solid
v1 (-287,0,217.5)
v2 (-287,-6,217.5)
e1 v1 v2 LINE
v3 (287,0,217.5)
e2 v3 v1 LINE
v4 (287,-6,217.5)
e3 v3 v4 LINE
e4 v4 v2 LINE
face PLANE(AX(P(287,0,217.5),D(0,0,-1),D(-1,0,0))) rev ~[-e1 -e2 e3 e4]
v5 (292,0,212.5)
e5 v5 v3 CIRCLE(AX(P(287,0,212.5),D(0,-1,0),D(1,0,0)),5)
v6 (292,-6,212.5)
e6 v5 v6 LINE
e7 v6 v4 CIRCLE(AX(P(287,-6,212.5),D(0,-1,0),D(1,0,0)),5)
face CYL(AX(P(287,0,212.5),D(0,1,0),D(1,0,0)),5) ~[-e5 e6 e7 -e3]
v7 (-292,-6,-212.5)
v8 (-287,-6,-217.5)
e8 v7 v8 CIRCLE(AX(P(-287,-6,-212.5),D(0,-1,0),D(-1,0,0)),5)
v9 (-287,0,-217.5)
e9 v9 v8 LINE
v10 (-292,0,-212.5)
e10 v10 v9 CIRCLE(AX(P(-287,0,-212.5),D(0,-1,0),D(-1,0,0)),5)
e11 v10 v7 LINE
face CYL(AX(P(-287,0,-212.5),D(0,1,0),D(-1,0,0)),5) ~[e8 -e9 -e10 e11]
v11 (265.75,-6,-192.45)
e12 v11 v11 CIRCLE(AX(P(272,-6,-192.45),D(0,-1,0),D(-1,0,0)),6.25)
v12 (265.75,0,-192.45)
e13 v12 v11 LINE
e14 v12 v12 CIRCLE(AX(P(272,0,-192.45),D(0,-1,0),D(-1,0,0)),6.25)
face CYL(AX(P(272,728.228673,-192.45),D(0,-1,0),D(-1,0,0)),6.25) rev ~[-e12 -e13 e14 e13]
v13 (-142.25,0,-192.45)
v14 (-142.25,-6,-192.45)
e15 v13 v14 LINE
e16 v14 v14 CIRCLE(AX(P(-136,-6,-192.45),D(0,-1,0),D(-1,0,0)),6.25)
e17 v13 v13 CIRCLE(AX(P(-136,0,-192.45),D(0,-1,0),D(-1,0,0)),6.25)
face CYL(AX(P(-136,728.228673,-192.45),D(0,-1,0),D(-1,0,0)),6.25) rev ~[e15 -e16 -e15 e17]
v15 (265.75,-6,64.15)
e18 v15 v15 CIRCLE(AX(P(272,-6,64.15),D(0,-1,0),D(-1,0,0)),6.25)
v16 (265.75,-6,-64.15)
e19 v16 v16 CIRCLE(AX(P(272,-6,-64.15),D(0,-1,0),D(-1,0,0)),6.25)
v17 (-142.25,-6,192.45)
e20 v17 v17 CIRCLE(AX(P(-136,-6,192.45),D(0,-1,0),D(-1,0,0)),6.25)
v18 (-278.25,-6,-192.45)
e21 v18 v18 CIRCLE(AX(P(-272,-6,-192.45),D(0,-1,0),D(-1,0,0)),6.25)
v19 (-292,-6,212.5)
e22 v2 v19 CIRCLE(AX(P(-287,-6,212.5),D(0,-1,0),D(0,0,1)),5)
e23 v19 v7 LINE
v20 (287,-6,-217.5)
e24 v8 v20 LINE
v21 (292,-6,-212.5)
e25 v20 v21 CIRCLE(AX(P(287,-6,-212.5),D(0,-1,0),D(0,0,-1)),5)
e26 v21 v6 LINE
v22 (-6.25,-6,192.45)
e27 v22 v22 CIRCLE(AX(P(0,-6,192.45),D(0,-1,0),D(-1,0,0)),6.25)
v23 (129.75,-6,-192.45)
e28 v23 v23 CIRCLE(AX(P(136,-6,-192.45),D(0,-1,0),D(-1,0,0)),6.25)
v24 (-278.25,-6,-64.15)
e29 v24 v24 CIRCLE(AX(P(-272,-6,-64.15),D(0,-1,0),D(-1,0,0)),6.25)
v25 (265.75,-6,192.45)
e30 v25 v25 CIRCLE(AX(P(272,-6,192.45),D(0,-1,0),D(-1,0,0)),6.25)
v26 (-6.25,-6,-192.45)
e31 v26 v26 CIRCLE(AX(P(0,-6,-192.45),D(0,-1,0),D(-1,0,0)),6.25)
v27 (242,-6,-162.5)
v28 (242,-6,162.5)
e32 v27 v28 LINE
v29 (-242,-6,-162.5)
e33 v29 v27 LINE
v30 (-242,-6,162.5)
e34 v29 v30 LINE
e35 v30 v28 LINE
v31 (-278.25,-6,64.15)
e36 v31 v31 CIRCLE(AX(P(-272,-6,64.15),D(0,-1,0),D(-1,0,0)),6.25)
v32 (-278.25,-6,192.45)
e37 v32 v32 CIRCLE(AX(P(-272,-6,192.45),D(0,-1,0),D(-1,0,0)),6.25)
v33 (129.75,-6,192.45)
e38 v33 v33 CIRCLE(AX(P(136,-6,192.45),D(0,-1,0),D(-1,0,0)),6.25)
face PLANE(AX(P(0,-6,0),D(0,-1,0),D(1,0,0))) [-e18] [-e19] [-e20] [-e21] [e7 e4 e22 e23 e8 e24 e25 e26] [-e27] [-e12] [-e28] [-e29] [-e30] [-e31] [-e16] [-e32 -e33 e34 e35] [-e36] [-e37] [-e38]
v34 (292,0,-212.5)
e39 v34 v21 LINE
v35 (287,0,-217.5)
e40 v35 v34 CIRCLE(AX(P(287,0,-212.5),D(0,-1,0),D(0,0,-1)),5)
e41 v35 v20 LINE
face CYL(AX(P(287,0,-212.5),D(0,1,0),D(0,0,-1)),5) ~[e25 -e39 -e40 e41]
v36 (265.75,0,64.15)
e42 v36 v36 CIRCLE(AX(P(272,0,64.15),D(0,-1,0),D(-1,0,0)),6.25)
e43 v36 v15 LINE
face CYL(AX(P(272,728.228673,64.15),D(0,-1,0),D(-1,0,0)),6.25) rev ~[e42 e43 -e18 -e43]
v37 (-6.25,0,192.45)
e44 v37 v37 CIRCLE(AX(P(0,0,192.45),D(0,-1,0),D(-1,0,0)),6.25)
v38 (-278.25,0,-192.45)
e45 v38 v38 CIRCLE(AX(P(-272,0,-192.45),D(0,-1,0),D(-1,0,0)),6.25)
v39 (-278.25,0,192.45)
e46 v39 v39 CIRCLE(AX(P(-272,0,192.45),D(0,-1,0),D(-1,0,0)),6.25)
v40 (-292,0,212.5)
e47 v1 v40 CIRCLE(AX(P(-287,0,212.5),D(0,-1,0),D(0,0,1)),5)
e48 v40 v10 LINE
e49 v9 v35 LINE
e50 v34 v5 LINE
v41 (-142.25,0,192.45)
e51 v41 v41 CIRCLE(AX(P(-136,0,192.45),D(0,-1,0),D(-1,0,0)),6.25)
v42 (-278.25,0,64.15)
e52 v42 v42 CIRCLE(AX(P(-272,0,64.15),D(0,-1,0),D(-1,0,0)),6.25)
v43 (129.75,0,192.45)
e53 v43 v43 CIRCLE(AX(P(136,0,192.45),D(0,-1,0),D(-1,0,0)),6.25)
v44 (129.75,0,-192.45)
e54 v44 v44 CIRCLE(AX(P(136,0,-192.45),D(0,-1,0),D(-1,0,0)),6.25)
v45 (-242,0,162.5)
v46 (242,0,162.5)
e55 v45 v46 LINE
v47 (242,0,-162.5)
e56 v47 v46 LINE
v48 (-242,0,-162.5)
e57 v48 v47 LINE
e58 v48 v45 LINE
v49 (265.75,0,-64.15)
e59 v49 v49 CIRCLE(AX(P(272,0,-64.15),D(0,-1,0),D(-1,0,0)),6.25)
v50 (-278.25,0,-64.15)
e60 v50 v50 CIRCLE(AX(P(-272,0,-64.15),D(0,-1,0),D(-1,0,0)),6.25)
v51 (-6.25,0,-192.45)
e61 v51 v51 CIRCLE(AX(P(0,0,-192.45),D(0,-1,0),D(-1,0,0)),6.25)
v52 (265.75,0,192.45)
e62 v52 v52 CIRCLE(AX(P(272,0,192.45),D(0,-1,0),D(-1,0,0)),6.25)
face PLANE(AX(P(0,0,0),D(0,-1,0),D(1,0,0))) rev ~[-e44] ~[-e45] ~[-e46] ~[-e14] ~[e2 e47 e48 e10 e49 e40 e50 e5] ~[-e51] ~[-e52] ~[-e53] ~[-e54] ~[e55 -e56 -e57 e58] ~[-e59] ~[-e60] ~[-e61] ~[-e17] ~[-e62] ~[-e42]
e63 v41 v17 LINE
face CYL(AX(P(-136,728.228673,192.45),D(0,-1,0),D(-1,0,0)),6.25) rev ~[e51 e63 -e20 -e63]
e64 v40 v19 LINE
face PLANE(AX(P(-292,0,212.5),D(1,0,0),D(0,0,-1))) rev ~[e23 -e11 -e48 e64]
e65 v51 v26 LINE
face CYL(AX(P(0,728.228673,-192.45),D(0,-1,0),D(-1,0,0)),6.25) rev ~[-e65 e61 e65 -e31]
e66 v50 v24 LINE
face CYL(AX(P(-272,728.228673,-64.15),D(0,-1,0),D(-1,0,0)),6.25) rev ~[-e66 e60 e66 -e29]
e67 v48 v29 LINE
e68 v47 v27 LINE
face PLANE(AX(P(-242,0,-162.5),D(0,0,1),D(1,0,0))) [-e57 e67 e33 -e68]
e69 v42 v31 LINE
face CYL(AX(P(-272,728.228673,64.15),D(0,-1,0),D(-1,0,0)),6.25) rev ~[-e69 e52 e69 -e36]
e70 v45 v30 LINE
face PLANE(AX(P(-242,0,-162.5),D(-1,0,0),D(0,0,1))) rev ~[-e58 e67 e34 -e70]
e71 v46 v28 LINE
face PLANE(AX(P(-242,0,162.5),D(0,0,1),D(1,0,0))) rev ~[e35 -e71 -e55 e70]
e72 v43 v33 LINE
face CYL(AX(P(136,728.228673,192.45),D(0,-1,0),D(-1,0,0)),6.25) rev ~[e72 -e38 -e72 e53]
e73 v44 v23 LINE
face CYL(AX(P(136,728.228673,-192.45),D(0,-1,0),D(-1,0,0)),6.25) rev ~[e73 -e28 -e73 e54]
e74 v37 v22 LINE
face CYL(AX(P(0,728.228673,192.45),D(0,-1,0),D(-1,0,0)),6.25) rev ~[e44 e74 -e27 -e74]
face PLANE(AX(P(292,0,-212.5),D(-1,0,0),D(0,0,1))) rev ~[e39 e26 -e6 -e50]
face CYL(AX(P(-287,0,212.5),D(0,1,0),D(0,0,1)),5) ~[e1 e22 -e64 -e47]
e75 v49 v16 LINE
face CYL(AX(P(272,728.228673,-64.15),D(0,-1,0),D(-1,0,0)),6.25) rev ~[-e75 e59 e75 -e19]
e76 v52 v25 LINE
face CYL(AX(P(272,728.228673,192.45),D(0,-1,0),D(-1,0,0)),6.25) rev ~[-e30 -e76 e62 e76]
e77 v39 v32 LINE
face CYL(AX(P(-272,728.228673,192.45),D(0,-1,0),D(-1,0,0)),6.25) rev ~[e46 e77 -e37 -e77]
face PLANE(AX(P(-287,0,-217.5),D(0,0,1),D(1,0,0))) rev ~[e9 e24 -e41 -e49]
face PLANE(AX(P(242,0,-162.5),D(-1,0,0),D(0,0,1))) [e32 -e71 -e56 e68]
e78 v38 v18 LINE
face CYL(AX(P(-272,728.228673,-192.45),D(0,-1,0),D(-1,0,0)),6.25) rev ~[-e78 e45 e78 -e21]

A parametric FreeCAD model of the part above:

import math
import FreeCAD as App
import Part
import Sketcher

V = App.Vector

doc = App.newDocument("Part")
body = doc.addObject("PartDesign::Body", "Body")

# Sketch on XZ plane
sketch1 = body.newObject("Sketcher::SketchObject", "Sketch")
sketch1.AttachmentSupport = (doc.getObject("XZ_Plane"), [""])
sketch1.MapMode = "FlatFace"
sketch1.addGeometry(Part.LineSegment(V(-287, -218, 0), V(287, -218, 0)), False)
sketch1.addGeometry(Part.ArcOfCircle(Part.Circle(V(287, -212, 0), V(0, 0, 1), 5), math.radians(-90), math.radians(0)), False)
sketch1.addGeometry(Part.LineSegment(V(292, -212, 0), V(292, 212, 0)), False)
sketch1.addGeometry(Part.ArcOfCircle(Part.Circle(V(287, 212, 0), V(0, 0, 1), 5), math.radians(0), math.radians(90)), False)
sketch1.addGeometry(Part.LineSegment(V(287, 218, 0), V(-287, 218, 0)), False)
sketch1.addGeometry(Part.ArcOfCircle(Part.Circle(V(-287, 212, 0), V(0, 0, 1), 5), math.radians(90), math.radians(180)), False)
sketch1.addGeometry(Part.LineSegment(V(-292, 212, 0), V(-292, -212, 0)), False)
sketch1.addGeometry(Part.ArcOfCircle(Part.Circle(V(-287, -212, 0), V(0, 0, 1), 5), math.radians(180), math.radians(270)), False)
sketch1.addGeometry(Part.LineSegment(V(242, -162, 0), V(-242, -162, 0)), False)
sketch1.addGeometry(Part.LineSegment(V(-242, -162, 0), V(-242, 162, 0)), False)
sketch1.addGeometry(Part.LineSegment(V(-242, 162, 0), V(242, 162, 0)), False)
sketch1.addGeometry(Part.LineSegment(V(242, 162, 0), V(242, -162, 0)), False)
sketch1.addConstraint(Sketcher.Constraint("Tangent", 0, 2, 1, 1))
sketch1.addConstraint(Sketcher.Constraint("Tangent", 1, 2, 2, 1))
sketch1.addConstraint(Sketcher.Constraint("Tangent", 2, 2, 3, 1))
sketch1.addConstraint(Sketcher.Constraint("Tangent", 3, 2, 4, 1))
sketch1.addConstraint(Sketcher.Constraint("Tangent", 4, 2, 5, 1))
sketch1.addConstraint(Sketcher.Constraint("Tangent", 5, 2, 6, 1))
sketch1.addConstraint(Sketcher.Constraint("Tangent", 6, 2, 7, 1))
sketch1.addConstraint(Sketcher.Constraint("Tangent", 7, 2, 0, 1))
sketch1.addConstraint(Sketcher.Constraint("Coincident", 8, 2, 9, 1))
sketch1.addConstraint(Sketcher.Constraint("Coincident", 9, 2, 10, 1))
sketch1.addConstraint(Sketcher.Constraint("Coincident", 10, 2, 11, 1))
sketch1.addConstraint(Sketcher.Constraint("Coincident", 11, 2, 8, 1))
sketch1.addConstraint(Sketcher.Constraint("Horizontal", 0))
sketch1.addConstraint(Sketcher.Constraint("Vertical", 2))
sketch1.addConstraint(Sketcher.Constraint("Horizontal", 4))
sketch1.addConstraint(Sketcher.Constraint("Vertical", 6))
sketch1.addConstraint(Sketcher.Constraint("Horizontal", 8))
sketch1.addConstraint(Sketcher.Constraint("Vertical", 9))
sketch1.addConstraint(Sketcher.Constraint("Horizontal", 10))
sketch1.addConstraint(Sketcher.Constraint("Vertical", 11))
sketch1.addConstraint(Sketcher.Constraint("Equal", 1, 3))
sketch1.addConstraint(Sketcher.Constraint("Equal", 3, 5))
sketch1.addConstraint(Sketcher.Constraint("Equal", 5, 7))
sketch1.addConstraint(Sketcher.Constraint("Symmetric", 1, 3, 5, 3, -1, 1))
sketch1.addConstraint(Sketcher.Constraint("Symmetric", 8, 2, 10, 2, -1, 1))
sketch1.addConstraint(Sketcher.Constraint("Radius", 1, 5.0))
sketch1.addConstraint(Sketcher.Constraint("DistanceX", 0, 1, 0, 2, 574.0))
sketch1.addConstraint(Sketcher.Constraint("DistanceX", 8, 2, 8, 1, 484.0))
sketch1.addConstraint(Sketcher.Constraint("DistanceY", 2, 1, 2, 2, 425.0))
sketch1.addConstraint(Sketcher.Constraint("DistanceY", 9, 1, 9, 2, 325.0))
pad1 = body.newObject("PartDesign::Pad", "Pad")
pad1.Profile = sketch1
pad1.Length = 6

# Sketch on XZ plane
sketch2 = body.newObject("Sketcher::SketchObject", "Sketch001")
sketch2.AttachmentSupport = (doc.getObject("XZ_Plane"), [""])
sketch2.MapMode = "FlatFace"
sketch2.addGeometry(Part.Circle(V(-272, 192, 0), V(0, 0, 1), 6), False)
sketch2.addGeometry(Part.Circle(V(-272, 64, 0), V(0, 0, 1), 6), False)
sketch2.addGeometry(Part.Circle(V(-272, -64, 0), V(0, 0, 1), 6), False)
sketch2.addGeometry(Part.Circle(V(-272, -192, 0), V(0, 0, 1), 6), False)
sketch2.addGeometry(Part.Circle(V(-136, -192, 0), V(0, 0, 1), 6), False)
sketch2.addGeometry(Part.Circle(V(0, -192, 0), V(0, 0, 1), 6), False)
sketch2.addGeometry(Part.Circle(V(272, -192, 0), V(0, 0, 1), 6), False)
sketch2.addGeometry(Part.Circle(V(136, -192, 0), V(0, 0, 1), 6), False)
sketch2.addGeometry(Part.Circle(V(272, 64, 0), V(0, 0, 1), 6), False)
sketch2.addGeometry(Part.Circle(V(272, -64, 0), V(0, 0, 1), 6), False)
sketch2.addGeometry(Part.Circle(V(272, 192, 0), V(0, 0, 1), 6), False)
sketch2.addGeometry(Part.Circle(V(-136, 192, 0), V(0, 0, 1), 6), False)
sketch2.addGeometry(Part.Circle(V(136, 192, 0), V(0, 0, 1), 6), False)
sketch2.addGeometry(Part.Circle(V(0, 192, 0), V(0, 0, 1), 6), False)
sketch2.addConstraint(Sketcher.Constraint("Equal", 0, 1))
sketch2.addConstraint(Sketcher.Constraint("Equal", 1, 2))
sketch2.addConstraint(Sketcher.Constraint("Equal", 2, 3))
sketch2.addConstraint(Sketcher.Constraint("Equal", 3, 4))
sketch2.addConstraint(Sketcher.Constraint("Equal", 4, 5))
sketch2.addConstraint(Sketcher.Constraint("Equal", 5, 6))
sketch2.addConstraint(Sketcher.Constraint("Equal", 6, 7))
sketch2.addConstraint(Sketcher.Constraint("Equal", 7, 8))
sketch2.addConstraint(Sketcher.Constraint("Equal", 8, 9))
sketch2.addConstraint(Sketcher.Constraint("Equal", 9, 10))
sketch2.addConstraint(Sketcher.Constraint("Equal", 10, 11))
sketch2.addConstraint(Sketcher.Constraint("Equal", 11, 12))
sketch2.addConstraint(Sketcher.Constraint("Equal", 12, 13))
sketch2.addConstraint(Sketcher.Constraint("Symmetric", 0, 3, 6, 3, -1, 1))
sketch2.addConstraint(Sketcher.Constraint("Symmetric", 2, 3, 8, 3, -1, 1))
sketch2.addConstraint(Sketcher.Constraint("Symmetric", 1, 3, 9, 3, -1, 1))
sketch2.addConstraint(Sketcher.Constraint("Symmetric", 3, 3, 10, 3, -1, 1))
sketch2.addConstraint(Sketcher.Constraint("Symmetric", 7, 3, 11, 3, -1, 1))
sketch2.addConstraint(Sketcher.Constraint("Symmetric", 4, 3, 12, 3, -1, 1))
sketch2.addConstraint(Sketcher.Constraint("Symmetric", 5, 3, 13, 3, -1, 1))
sketch2.addConstraint(Sketcher.Constraint("Symmetric", 3, 3, 6, 3, -2))
sketch2.addConstraint(Sketcher.Constraint("Symmetric", 4, 3, 7, 3, -2))
sketch2.addConstraint(Sketcher.Constraint("Symmetric", 1, 3, 8, 3, -2))
sketch2.addConstraint(Sketcher.Constraint("PointOnObject", 5, 3, -2))
sketch2.addConstraint(Sketcher.Constraint("Horizontal", 3, 3, 4, 3))
sketch2.addConstraint(Sketcher.Constraint("Horizontal", 4, 3, 5, 3))
sketch2.addConstraint(Sketcher.Constraint("Vertical", 0, 3, 1, 3))
sketch2.addConstraint(Sketcher.Constraint("Diameter", 0, 12.5))
sketch2.addConstraint(Sketcher.Constraint("DistanceX", 0, 3, -1, 1, 272.0))
sketch2.addConstraint(Sketcher.Constraint("DistanceX", 4, 3, -1, 1, 136.0))
sketch2.addConstraint(Sketcher.Constraint("DistanceY", 1, 3, 0, 3, 128.3))
sketch2.addConstraint(Sketcher.Constraint("DistanceY", 2, 3, 1, 3, 128.3))
doc.recompute()
hole = body.newObject("PartDesign::Hole", "Hole")
hole.Profile = sketch2
hole.ThreadType = "None"
hole.Diameter = 12.5
hole.DepthType = "ThroughAll"
hole.Reversed = True

doc.recompute()
